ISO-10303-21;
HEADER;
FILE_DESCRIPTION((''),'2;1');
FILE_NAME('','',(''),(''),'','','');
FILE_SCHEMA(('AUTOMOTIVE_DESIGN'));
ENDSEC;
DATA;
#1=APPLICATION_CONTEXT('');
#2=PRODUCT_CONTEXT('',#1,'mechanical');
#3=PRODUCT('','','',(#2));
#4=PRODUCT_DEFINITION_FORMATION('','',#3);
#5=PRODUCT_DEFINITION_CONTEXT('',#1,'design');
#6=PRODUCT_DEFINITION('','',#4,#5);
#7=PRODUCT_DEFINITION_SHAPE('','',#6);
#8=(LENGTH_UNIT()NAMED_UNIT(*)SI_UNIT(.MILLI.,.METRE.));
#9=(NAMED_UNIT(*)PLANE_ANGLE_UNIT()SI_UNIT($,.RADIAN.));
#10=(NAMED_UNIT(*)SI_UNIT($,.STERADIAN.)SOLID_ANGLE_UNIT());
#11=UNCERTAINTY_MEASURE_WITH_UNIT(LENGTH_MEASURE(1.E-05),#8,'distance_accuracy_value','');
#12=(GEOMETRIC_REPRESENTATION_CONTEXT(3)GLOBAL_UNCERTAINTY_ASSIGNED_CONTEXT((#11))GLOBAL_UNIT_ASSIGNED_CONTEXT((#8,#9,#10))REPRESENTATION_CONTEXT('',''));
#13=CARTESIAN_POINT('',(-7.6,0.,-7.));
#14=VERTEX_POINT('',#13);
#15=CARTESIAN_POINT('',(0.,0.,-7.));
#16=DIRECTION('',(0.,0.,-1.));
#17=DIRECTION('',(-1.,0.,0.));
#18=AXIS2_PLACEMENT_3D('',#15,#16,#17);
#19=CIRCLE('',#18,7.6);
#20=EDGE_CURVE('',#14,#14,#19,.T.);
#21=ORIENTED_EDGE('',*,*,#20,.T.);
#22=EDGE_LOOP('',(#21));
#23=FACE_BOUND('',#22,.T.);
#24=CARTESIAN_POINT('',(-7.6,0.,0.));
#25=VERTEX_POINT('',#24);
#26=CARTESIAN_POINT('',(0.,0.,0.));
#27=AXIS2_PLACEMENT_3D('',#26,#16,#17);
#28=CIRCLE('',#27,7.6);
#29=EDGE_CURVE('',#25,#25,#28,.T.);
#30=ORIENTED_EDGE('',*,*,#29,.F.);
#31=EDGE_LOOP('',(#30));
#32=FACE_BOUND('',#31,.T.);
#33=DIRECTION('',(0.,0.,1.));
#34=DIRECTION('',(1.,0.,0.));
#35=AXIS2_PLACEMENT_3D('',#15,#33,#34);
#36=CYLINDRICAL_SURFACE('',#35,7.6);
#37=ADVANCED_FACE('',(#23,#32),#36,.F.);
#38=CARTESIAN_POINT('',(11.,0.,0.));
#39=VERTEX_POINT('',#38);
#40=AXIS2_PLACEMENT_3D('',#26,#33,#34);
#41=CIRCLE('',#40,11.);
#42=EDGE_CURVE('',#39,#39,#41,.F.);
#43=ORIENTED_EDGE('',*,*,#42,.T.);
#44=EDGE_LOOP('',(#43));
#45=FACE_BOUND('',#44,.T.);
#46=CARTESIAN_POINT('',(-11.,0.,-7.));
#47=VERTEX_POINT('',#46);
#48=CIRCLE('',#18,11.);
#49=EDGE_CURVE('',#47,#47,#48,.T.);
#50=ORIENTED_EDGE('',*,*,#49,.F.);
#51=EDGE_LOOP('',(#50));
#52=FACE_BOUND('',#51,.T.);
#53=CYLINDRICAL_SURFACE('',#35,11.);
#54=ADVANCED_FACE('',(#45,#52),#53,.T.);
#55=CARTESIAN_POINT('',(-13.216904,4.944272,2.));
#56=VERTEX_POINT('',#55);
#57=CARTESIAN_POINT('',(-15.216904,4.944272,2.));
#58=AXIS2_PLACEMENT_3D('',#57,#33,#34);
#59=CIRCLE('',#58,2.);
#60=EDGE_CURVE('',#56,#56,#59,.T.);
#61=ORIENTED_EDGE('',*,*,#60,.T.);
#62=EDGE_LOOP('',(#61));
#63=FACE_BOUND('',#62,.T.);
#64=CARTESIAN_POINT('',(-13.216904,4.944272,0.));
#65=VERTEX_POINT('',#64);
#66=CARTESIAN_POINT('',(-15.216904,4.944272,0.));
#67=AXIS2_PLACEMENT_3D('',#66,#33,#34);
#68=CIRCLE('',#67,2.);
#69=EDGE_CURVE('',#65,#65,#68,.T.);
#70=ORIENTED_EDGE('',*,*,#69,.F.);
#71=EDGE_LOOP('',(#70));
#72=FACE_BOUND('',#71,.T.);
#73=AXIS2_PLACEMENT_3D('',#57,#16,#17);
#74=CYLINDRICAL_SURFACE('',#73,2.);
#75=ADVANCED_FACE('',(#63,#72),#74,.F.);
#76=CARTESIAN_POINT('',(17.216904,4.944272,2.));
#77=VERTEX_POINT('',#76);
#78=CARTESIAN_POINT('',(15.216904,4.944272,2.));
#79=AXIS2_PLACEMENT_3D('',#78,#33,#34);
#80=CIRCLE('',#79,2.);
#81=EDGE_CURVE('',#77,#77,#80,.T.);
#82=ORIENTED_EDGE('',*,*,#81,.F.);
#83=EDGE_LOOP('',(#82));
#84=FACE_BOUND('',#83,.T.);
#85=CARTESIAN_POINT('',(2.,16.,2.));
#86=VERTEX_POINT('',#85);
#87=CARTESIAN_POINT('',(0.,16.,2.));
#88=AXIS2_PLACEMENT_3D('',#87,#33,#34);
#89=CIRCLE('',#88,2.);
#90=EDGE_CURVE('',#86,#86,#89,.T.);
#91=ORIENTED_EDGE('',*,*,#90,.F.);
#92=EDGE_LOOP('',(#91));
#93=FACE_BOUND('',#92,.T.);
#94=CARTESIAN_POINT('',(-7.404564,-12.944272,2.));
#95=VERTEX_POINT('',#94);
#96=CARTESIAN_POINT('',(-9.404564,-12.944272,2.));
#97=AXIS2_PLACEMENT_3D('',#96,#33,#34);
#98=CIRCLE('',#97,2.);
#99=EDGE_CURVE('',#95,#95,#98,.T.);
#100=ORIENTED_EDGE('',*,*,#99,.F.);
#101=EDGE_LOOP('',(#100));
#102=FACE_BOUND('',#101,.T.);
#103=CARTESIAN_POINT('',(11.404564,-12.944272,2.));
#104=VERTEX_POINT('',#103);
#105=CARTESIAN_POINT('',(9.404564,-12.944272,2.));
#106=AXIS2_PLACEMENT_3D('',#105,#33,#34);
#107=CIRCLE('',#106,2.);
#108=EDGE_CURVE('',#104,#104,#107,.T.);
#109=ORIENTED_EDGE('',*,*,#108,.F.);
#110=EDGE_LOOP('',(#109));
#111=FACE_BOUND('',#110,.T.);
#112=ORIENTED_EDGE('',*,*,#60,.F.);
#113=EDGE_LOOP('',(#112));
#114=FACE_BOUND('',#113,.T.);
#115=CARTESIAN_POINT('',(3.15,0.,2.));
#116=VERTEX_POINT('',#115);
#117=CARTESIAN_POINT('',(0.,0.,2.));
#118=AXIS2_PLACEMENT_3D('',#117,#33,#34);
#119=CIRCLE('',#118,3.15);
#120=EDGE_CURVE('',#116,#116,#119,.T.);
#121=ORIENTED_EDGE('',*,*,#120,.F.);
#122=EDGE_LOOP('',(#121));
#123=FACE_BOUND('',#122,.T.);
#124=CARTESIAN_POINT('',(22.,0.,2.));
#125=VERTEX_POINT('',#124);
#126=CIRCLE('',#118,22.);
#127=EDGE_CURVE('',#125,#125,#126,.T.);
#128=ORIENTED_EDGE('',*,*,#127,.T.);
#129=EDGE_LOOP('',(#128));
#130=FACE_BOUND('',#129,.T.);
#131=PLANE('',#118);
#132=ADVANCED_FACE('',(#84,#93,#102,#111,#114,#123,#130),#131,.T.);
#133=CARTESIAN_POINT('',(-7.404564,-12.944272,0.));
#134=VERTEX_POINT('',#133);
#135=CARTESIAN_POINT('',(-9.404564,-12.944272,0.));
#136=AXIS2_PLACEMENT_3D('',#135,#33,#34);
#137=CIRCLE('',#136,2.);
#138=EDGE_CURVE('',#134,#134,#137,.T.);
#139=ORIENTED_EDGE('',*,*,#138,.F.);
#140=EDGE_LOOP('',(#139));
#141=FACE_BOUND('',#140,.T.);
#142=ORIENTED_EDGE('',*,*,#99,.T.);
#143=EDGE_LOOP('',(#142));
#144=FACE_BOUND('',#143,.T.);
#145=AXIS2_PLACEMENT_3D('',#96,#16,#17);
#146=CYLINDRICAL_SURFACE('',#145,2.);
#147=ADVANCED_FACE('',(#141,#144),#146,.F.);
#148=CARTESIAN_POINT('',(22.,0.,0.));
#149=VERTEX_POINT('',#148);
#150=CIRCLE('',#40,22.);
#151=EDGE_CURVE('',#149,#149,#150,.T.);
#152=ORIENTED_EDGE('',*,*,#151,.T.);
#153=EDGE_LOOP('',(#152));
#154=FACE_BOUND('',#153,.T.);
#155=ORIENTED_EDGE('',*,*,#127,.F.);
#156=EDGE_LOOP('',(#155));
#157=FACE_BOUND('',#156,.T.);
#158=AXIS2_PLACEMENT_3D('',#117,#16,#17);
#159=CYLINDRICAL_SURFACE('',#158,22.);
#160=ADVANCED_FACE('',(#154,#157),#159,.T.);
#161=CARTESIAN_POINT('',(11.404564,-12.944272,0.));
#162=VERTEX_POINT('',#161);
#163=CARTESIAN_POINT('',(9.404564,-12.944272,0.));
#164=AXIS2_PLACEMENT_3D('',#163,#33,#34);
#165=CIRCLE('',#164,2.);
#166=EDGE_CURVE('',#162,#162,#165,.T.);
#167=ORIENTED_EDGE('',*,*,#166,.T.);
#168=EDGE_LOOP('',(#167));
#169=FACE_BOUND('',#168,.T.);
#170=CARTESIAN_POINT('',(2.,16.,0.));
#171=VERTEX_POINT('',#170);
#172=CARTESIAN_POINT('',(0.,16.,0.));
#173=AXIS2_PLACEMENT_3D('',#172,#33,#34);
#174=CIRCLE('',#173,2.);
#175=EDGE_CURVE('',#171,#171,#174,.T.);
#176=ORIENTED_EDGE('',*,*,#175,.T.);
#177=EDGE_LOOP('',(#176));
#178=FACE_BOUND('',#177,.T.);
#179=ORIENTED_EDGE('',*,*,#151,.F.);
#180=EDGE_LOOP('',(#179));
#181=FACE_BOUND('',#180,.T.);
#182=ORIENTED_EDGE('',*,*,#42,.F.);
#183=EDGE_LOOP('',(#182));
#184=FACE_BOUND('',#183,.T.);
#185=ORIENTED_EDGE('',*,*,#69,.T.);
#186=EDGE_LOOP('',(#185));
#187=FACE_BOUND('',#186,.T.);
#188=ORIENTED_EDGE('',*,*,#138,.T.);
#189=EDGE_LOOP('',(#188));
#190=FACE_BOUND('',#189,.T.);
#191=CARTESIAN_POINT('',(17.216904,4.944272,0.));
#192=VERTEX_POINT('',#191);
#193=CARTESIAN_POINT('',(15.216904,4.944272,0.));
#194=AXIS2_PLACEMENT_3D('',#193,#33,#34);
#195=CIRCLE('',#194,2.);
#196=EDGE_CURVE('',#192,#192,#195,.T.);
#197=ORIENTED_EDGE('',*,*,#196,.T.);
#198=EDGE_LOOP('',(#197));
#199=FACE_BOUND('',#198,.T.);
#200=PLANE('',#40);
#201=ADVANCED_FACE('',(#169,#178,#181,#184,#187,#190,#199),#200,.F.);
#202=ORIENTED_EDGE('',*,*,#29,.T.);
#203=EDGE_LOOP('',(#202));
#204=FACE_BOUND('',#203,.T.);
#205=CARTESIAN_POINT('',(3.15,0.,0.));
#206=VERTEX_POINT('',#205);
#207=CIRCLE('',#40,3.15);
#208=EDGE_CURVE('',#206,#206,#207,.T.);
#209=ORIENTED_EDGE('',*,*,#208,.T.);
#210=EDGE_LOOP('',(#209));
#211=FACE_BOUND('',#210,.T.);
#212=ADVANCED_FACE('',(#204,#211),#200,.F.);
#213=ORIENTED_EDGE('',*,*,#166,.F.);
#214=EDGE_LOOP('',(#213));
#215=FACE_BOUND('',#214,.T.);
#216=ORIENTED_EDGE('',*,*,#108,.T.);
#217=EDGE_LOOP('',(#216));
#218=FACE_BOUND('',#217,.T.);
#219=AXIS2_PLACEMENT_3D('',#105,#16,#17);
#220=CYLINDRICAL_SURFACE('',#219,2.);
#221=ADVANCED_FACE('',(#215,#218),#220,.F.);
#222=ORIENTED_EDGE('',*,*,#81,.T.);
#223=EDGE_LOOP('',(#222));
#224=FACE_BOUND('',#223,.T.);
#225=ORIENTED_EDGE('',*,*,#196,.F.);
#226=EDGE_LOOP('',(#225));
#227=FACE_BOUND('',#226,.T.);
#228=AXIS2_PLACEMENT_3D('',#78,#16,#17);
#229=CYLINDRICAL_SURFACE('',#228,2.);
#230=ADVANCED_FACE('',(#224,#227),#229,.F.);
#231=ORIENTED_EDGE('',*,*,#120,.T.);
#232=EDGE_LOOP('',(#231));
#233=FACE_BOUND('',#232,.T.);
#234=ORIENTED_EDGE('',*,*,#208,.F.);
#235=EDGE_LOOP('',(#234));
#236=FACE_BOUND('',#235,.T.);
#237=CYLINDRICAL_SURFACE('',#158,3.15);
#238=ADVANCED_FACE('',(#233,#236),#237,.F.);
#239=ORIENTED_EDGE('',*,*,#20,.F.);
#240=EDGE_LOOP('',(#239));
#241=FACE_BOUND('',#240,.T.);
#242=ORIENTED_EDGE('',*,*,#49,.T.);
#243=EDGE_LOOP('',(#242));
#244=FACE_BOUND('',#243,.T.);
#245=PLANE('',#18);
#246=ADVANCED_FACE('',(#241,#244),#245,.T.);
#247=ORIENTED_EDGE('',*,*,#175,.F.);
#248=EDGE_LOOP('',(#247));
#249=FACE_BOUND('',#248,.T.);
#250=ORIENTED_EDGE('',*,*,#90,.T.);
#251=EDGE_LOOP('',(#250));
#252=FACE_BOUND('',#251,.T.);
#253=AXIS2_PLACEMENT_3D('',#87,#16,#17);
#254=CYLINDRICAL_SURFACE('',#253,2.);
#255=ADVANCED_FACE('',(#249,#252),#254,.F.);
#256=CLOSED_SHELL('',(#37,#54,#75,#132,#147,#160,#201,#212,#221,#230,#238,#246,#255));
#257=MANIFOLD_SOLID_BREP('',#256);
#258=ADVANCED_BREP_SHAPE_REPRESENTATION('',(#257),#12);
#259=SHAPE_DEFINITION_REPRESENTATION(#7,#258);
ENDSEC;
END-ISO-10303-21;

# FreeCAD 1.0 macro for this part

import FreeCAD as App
import Part
import Sketcher
from FreeCAD import Vector
Q = App.Units.Quantity

doc = App.newDocument("Part")
body = doc.addObject("PartDesign::Body", "Body")

sketch1 = body.newObject("Sketcher::SketchObject", "Sketch")
sketch1.AttachmentSupport = (doc.getObject("XY_Plane"), [""])
sketch1.MapMode = "FlatFace"
sketch1.addGeometry([
    Part.Circle(Vector(0, 0, 0), Vector(0, 0, 1), 22),
    Part.Circle(Vector(-9.404564, -12.944272, 0), Vector(0, 0, 1), 2),
    Part.Circle(Vector(0, 0, 0), Vector(0, 0, 1), 3.15),
    Part.Circle(Vector(9.404564, -12.944272, 0), Vector(0, 0, 1), 2),
    Part.Circle(Vector(-15.216904, 4.944272, 0), Vector(0, 0, 1), 2),
    Part.Circle(Vector(0, 16, 0), Vector(0, 0, 1), 2),
    Part.Circle(Vector(15.216904, 4.944272, 0), Vector(0, 0, 1), 2),
], False)
sketch1.addConstraint([
    Sketcher.Constraint("Coincident", 0, 3, -1, 1),
    Sketcher.Constraint("Coincident", 2, 3, -1, 1),
    Sketcher.Constraint("Equal", 1, 3),
    Sketcher.Constraint("Equal", 3, 4),
    Sketcher.Constraint("Equal", 4, 5),
    Sketcher.Constraint("Equal", 5, 6),
    Sketcher.Constraint("Symmetric", 1, 3, 3, 3, -2),
    Sketcher.Constraint("Symmetric", 4, 3, 6, 3, -2),
    Sketcher.Constraint("PointOnObject", 5, 3, -2),
    Sketcher.Constraint("Diameter", 0, Q("44 mm")),
    Sketcher.Constraint("Diameter", 1, Q("4 mm")),
    Sketcher.Constraint("Diameter", 2, Q("6.3 mm")),
    Sketcher.Constraint("DistanceY", -1, 1, 5, 3, Q("16 mm")),
    Sketcher.Constraint("DistanceY", 1, 3, -1, 1, Q("12.944272 mm")),
    Sketcher.Constraint("DistanceY", -1, 1, 4, 3, Q("4.944272 mm")),
    Sketcher.Constraint("DistanceX", 1, 3, 3, 3, Q("18.809128 mm")),
    Sketcher.Constraint("DistanceX", 4, 3, 1, 3, Q("5.81234 mm")),
])
pad1 = body.newObject("PartDesign::Pad", "Pad")
pad1.Profile = sketch1
pad1.Length = 2

sketch2 = body.newObject("Sketcher::SketchObject", "Sketch001")
sketch2.AttachmentSupport = (doc.getObject("XY_Plane"), [""])
sketch2.MapMode = "FlatFace"
sketch2.addGeometry([
    Part.Circle(Vector(0, 0, 0), Vector(0, 0, 1), 11),
    Part.Circle(Vector(0, 0, 0), Vector(0, 0, 1), 7.6),
], False)
sketch2.addConstraint([
    Sketcher.Constraint("Coincident", 0, 3, -1, 1),
    Sketcher.Constraint("Coincident", 1, 3, -1, 1),
    Sketcher.Constraint("Diameter", 0, Q("22 mm")),
    Sketcher.Constraint("Diameter", 1, Q("15.2 mm")),
])
pad2 = body.newObject("PartDesign::Pad", "Pad001")
pad2.Profile = sketch2
pad2.Length = 7
pad2.Reversed = True

doc.recompute()
